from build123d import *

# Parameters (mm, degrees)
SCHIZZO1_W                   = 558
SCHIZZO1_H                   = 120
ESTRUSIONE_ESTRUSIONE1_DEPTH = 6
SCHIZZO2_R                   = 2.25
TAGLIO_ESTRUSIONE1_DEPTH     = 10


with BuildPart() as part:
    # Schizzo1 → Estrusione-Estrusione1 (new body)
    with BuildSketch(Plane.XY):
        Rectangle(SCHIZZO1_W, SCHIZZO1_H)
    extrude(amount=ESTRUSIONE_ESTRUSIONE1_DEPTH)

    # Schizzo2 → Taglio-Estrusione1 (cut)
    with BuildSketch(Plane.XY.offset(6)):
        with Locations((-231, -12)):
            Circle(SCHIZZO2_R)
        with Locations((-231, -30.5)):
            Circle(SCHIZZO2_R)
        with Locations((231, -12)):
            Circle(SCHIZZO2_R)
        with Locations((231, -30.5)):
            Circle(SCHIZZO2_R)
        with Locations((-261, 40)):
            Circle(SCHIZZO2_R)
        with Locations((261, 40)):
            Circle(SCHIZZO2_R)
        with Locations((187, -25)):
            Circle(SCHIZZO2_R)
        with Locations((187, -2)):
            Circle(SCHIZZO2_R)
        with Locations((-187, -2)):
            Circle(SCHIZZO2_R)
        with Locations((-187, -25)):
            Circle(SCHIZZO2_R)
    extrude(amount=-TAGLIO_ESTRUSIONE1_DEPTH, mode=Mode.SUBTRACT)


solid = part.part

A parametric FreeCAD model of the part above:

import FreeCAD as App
import Part
import Sketcher


def add_polygon(sketch, points):
    """Adds a closed chain of lines whose ends are joined by coincident constraints."""
    first, n = sketch.GeometryCount, len(points)
    for a, b in zip(points, points[1:] + points[:1]):
        sketch.addGeometry(Part.LineSegment(App.Vector(*a, 0), App.Vector(*b, 0)), False)
    for i in range(n):
        sketch.addConstraint(Sketcher.Constraint("Coincident", first + i, 2, first + (i + 1) % n, 1))

doc = App.newDocument("Part")
params = doc.addObject("Spreadsheet::Sheet", "Params")
for row, (alias, value) in enumerate([
    ("sketch1_width", "558 mm"),
    ("sketch1_height", "120 mm"),
    ("pad1_length", "6 mm"),
    ("sketch2_diameter", "4.5 mm"),
    ("pocket1_length", "10 mm"),
], start=1):
    params.set(f"A{row}", alias)
    params.set(f"B{row}", "=" + value)
    params.setAlias(f"B{row}", alias)

body = doc.addObject("PartDesign::Body", "Body")

sketch1 = body.newObject("Sketcher::SketchObject", "Sketch")
sketch1.AttachmentSupport = (doc.getObject("XY_Plane"), [""])
sketch1.MapMode = "FlatFace"
add_polygon(sketch1, [(-279, 60), (-279, -60), (279, -60), (279, 60)])
sketch1.addConstraint(Sketcher.Constraint("Vertical", 0))
sketch1.addConstraint(Sketcher.Constraint("Horizontal", 1))
sketch1.addConstraint(Sketcher.Constraint("Vertical", 2))
sketch1.addConstraint(Sketcher.Constraint("Horizontal", 3))
sketch1.addConstraint(Sketcher.Constraint("Symmetric", 0, 2, 2, 2, -1, 1))
sketch1.addConstraint(Sketcher.Constraint("DistanceX", 1, 1, 1, 2, 558.0))
sketch1.addConstraint(Sketcher.Constraint("DistanceY", 0, 2, 0, 1, 120.0))
sketch1.setExpression("Constraints[9]", "Params.sketch1_width")
sketch1.setExpression("Constraints[10]", "Params.sketch1_height")
pad1 = body.newObject("PartDesign::Pad", "Pad")
pad1.Profile = sketch1
pad1.setExpression("Length", "Params.pad1_length")

sketch2 = body.newObject("Sketcher::SketchObject", "Sketch001")
sketch2.AttachmentSupport = (doc.getObject("XY_Plane"), [""])
sketch2.MapMode = "FlatFace"
sketch2.AttachmentOffset = App.Placement(App.Vector(0, 0, 6), App.Rotation())
sketch2.addGeometry(Part.Circle(App.Vector(-231, -12, 0), App.Vector(0, 0, 1), 2.2), False)
sketch2.addGeometry(Part.Circle(App.Vector(-231, -30.5, 0), App.Vector(0, 0, 1), 2.2), False)
sketch2.addGeometry(Part.Circle(App.Vector(231, -12, 0), App.Vector(0, 0, 1), 2.2), False)
sketch2.addGeometry(Part.Circle(App.Vector(231, -30.5, 0), App.Vector(0, 0, 1), 2.2), False)
sketch2.addGeometry(Part.Circle(App.Vector(-261, 40, 0), App.Vector(0, 0, 1), 2.2), False)
sketch2.addGeometry(Part.Circle(App.Vector(261, 40, 0), App.Vector(0, 0, 1), 2.2), False)
sketch2.addGeometry(Part.Circle(App.Vector(187, -25, 0), App.Vector(0, 0, 1), 2.2), False)
sketch2.addGeometry(Part.Circle(App.Vector(187, -2, 0), App.Vector(0, 0, 1), 2.2), False)
sketch2.addGeometry(Part.Circle(App.Vector(-187, -2, 0), App.Vector(0, 0, 1), 2.2), False)
sketch2.addGeometry(Part.Circle(App.Vector(-187, -25, 0), App.Vector(0, 0, 1), 2.2), False)
sketch2.addConstraint(Sketcher.Constraint("Equal", 0, 1))
sketch2.addConstraint(Sketcher.Constraint("Equal", 1, 2))
sketch2.addConstraint(Sketcher.Constraint("Equal", 2, 3))
sketch2.addConstraint(Sketcher.Constraint("Equal", 3, 4))
sketch2.addConstraint(Sketcher.Constraint("Equal", 4, 5))
sketch2.addConstraint(Sketcher.Constraint("Equal", 5, 6))
sketch2.addConstraint(Sketcher.Constraint("Equal", 6, 7))
sketch2.addConstraint(Sketcher.Constraint("Equal", 7, 8))
sketch2.addConstraint(Sketcher.Constraint("Equal", 8, 9))
sketch2.addConstraint(Sketcher.Constraint("Symmetric", 0, 3, 2, 3, -2))
sketch2.addConstraint(Sketcher.Constraint("Symmetric", 1, 3, 3, 3, -2))
sketch2.addConstraint(Sketcher.Constraint("Symmetric", 4, 3, 5, 3, -2))
sketch2.addConstraint(Sketcher.Constraint("Symmetric", 7, 3, 8, 3, -2))
sketch2.addConstraint(Sketcher.Constraint("Symmetric", 6, 3, 9, 3, -2))
sketch2.addConstraint(Sketcher.Constraint("Vertical", 0, 3, 1, 3))
sketch2.addConstraint(Sketcher.Constraint("Vertical", 6, 3, 7, 3))
sketch2.addConstraint(Sketcher.Constraint("Diameter", 0, 4.5))
sketch2.addConstraint(Sketcher.Constraint("DistanceX", 0, 3, -1, 1, 231.0))
sketch2.addConstraint(Sketcher.Constraint("DistanceY", 0, 3, -1, 1, 12.0))
sketch2.addConstraint(Sketcher.Constraint("DistanceX", 4, 3, -1, 1, 261.0))
sketch2.addConstraint(Sketcher.Constraint("DistanceY", -1, 1, 4, 3, 40.0))
sketch2.addConstraint(Sketcher.Constraint("DistanceX", -1, 1, 6, 3, 187.0))
sketch2.addConstraint(Sketcher.Constraint("DistanceY", 6, 3, -1, 1, 25.0))
sketch2.addConstraint(Sketcher.Constraint("DistanceY", 7, 3, -1, 1, 2.0))
sketch2.addConstraint(Sketcher.Constraint("DistanceY", 1, 3, -1, 1, 30.5))
sketch2.setExpression("Constraints[16]", "Params.sketch2_diameter")
pocket1 = body.newObject("PartDesign::Pocket", "Pocket")
pocket1.Profile = sketch2
pocket1.setExpression("Length", "Params.pocket1_length")

doc.recompute()
